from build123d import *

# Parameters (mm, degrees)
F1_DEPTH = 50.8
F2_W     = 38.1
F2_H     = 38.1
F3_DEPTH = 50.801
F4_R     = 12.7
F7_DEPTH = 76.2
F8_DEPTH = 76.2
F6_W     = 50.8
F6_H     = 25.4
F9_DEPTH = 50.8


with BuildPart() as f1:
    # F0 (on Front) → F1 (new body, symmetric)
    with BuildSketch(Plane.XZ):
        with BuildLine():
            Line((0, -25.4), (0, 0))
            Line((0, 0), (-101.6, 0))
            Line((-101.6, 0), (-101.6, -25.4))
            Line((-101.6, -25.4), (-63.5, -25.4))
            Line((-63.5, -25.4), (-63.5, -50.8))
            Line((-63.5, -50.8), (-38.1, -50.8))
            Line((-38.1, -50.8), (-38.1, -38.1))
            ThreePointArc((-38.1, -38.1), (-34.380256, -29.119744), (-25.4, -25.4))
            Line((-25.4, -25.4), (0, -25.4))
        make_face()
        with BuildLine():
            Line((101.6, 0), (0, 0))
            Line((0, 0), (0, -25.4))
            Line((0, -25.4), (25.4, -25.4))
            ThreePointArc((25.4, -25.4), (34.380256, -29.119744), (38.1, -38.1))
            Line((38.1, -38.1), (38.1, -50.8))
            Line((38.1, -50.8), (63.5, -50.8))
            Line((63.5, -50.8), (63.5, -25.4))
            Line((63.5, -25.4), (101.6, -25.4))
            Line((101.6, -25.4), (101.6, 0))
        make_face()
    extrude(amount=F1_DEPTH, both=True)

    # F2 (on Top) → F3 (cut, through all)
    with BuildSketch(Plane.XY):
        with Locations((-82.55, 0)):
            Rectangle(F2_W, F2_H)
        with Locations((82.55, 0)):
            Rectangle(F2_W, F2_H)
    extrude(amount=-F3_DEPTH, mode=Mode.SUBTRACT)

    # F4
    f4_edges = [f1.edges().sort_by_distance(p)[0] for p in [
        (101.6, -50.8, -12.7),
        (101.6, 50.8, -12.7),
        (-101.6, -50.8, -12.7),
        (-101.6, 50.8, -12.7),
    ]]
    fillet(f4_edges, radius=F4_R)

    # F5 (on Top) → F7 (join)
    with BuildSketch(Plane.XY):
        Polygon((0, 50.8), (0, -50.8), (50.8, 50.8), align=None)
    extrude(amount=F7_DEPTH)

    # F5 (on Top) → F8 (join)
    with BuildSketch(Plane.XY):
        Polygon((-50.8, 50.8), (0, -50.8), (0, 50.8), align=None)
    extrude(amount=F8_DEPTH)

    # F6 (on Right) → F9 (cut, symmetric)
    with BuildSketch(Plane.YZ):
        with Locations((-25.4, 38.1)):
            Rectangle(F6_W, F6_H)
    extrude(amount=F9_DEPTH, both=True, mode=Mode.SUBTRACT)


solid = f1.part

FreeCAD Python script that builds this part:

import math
import FreeCAD as App
import Part
import Sketcher
Q = App.Units.Quantity


def edges_at(feature, points):
    """Names of the edges that pass closest to the given points."""
    edges = feature.Shape.Edges
    near = lambda p: min(range(len(edges)), key=lambda i: edges[i].distToShape(Part.Vertex(*p))[0])
    return sorted({f"Edge{near(p) + 1}" for p in points})


def add_polygon(sketch, points):
    """Adds a closed chain of lines whose ends are joined by coincident constraints."""
    first, n = sketch.GeometryCount, len(points)
    for a, b in zip(points, points[1:] + points[:1]):
        sketch.addGeometry(Part.LineSegment(App.Vector(*a, 0), App.Vector(*b, 0)), False)
    for i in range(n):
        sketch.addConstraint(Sketcher.Constraint("Coincident", first + i, 2, first + (i + 1) % n, 1))

doc = App.newDocument("Part")
body = doc.addObject("PartDesign::Body", "Body")

# Sketch on XZ plane
sketch1 = doc.addObject("Sketcher::SketchObject", "Sketch")
body.addObject(sketch1)
sketch1.AttachmentSupport = (doc.XZ_Plane, [""])
sketch1.MapMode = "FlatFace"
sketch1.addGeometry([
    Part.LineSegment(App.Vector(-102, 0, 0), App.Vector(-102, -25, 0)),  # 0
    Part.LineSegment(App.Vector(-102, -25, 0), App.Vector(-64, -25, 0)),  # 1
    Part.LineSegment(App.Vector(-64, -25, 0), App.Vector(-64, -51, 0)),  # 2
    Part.LineSegment(App.Vector(-64, -51, 0), App.Vector(-38, -51, 0)),  # 3
    Part.LineSegment(App.Vector(-38, -51, 0), App.Vector(-38, -38, 0)),  # 4
    Part.ArcOfCircle(Part.Circle(App.Vector(-25, -38, 0), App.Vector(0, 0, 1), 13), math.radians(90), math.radians(180)),  # 5
    Part.LineSegment(App.Vector(-25, -25, 0), App.Vector(25, -25, 0)),  # 6
    Part.ArcOfCircle(Part.Circle(App.Vector(25, -38, 0), App.Vector(0, 0, 1), 13), math.radians(0), math.radians(90)),  # 7
    Part.LineSegment(App.Vector(38, -38, 0), App.Vector(38, -51, 0)),  # 8
    Part.LineSegment(App.Vector(38, -51, 0), App.Vector(64, -51, 0)),  # 9
    Part.LineSegment(App.Vector(64, -51, 0), App.Vector(64, -25, 0)),  # 10
    Part.LineSegment(App.Vector(64, -25, 0), App.Vector(102, -25, 0)),  # 11
    Part.LineSegment(App.Vector(102, -25, 0), App.Vector(102, 0, 0)),  # 12
    Part.LineSegment(App.Vector(102, 0, 0), App.Vector(-102, 0, 0)),  # 13
], False)
sketch1.addConstraint([
    Sketcher.Constraint("Coincident", 0, 2, 1, 1),
    Sketcher.Constraint("Coincident", 1, 2, 2, 1),
    Sketcher.Constraint("Coincident", 2, 2, 3, 1),
    Sketcher.Constraint("Coincident", 3, 2, 4, 1),
    Sketcher.Constraint("Tangent", 4, 2, 5, 2),
    Sketcher.Constraint("Tangent", 5, 1, 6, 1),
    Sketcher.Constraint("Tangent", 6, 2, 7, 2),
    Sketcher.Constraint("Tangent", 7, 1, 8, 1),
    Sketcher.Constraint("Coincident", 8, 2, 9, 1),
    Sketcher.Constraint("Coincident", 9, 2, 10, 1),
    Sketcher.Constraint("Coincident", 10, 2, 11, 1),
    Sketcher.Constraint("Coincident", 11, 2, 12, 1),
    Sketcher.Constraint("Coincident", 12, 2, 13, 1),
    Sketcher.Constraint("Coincident", 13, 2, 0, 1),
    Sketcher.Constraint("Vertical", 0),
    Sketcher.Constraint("Horizontal", 1),
    Sketcher.Constraint("Vertical", 2),
    Sketcher.Constraint("Horizontal", 3),
    Sketcher.Constraint("Vertical", 4),
    Sketcher.Constraint("Horizontal", 6),
    Sketcher.Constraint("Vertical", 8),
    Sketcher.Constraint("Horizontal", 9),
    Sketcher.Constraint("Vertical", 10),
    Sketcher.Constraint("Horizontal", 11),
    Sketcher.Constraint("Vertical", 12),
    Sketcher.Constraint("Horizontal", 13),
    Sketcher.Constraint("Equal", 5, 7),
    Sketcher.Constraint("Symmetric", 12, 2, 13, 2, -1, 1),
    Sketcher.Constraint("Symmetric", 3, 2, 8, 2, -2),
    Sketcher.Constraint("Symmetric", 1, 2, 10, 2, -2),
    Sketcher.Constraint("Horizontal", 1, 2, 5, 1),
    Sketcher.Constraint("Equal", 9, 0),
    Sketcher.Constraint("Equal", 0, 2),
    Sketcher.Constraint("Radius", 5, Q("0.5 in")),
    Sketcher.Constraint("DistanceX", 3, 1, 3, 2, Q("1 in")),
    Sketcher.Constraint("DistanceX", 6, 1, 6, 2, Q("2 in")),
    Sketcher.Constraint("DistanceX", 13, 2, 13, 1, Q("8 in")),
])
pad1 = doc.addObject("PartDesign::Pad", "Pad")
body.addObject(pad1)
pad1.Profile = sketch1
pad1.Length = Q("4 in")
pad1.Midplane = True

# Sketch on XY plane
sketch2 = doc.addObject("Sketcher::SketchObject", "Sketch001")
body.addObject(sketch2)
sketch2.AttachmentSupport = (doc.XY_Plane, [""])
sketch2.MapMode = "FlatFace"
add_polygon(sketch2, [(-102, 19), (-102, -19), (-64, -19), (-64, 19)])  # lines 0-3
add_polygon(sketch2, [(64, 19), (64, -19), (102, -19), (102, 19)])  # lines 4-7
sketch2.addConstraint([
    Sketcher.Constraint("Vertical", 0),
    Sketcher.Constraint("Horizontal", 1),
    Sketcher.Constraint("Vertical", 2),
    Sketcher.Constraint("Horizontal", 3),
    Sketcher.Constraint("Vertical", 4),
    Sketcher.Constraint("Horizontal", 5),
    Sketcher.Constraint("Vertical", 6),
    Sketcher.Constraint("Horizontal", 7),
    Sketcher.Constraint("Symmetric", 2, 2, 4, 2, -1, 1),
    Sketcher.Constraint("Symmetric", 0, 2, 6, 2, -1, 1),
    Sketcher.Constraint("Horizontal", 1, 2, 4, 2),
    Sketcher.Constraint("Equal", 7, 0),
    Sketcher.Constraint("DistanceX", 1, 1, 1, 2, Q("1.5 in")),
    Sketcher.Constraint("DistanceX", 0, 2, -1, 1, Q("4 in")),
])
pocket1 = doc.addObject("PartDesign::Pocket", "Pocket")
body.addObject(pocket1)
pocket1.Profile = sketch2
pocket1.Type = "ThroughAll"
doc.recompute()

fillet = doc.addObject("PartDesign::Fillet", "Fillet")
body.addObject(fillet)
fillet.Base = (pocket1, edges_at(pocket1, [
    (101.6, -50.8, -12.7),
    (101.6, 50.8, -12.7),
    (-101.6, -50.8, -12.7),
    (-101.6, 50.8, -12.7),
]))
fillet.Radius = Q("0.5 in")

# Sketch on XY plane
sketch3 = doc.addObject("Sketcher::SketchObject", "Sketch002")
body.addObject(sketch3)
sketch3.AttachmentSupport = (doc.XY_Plane, [""])
sketch3.MapMode = "FlatFace"
add_polygon(sketch3, [(0, 51), (0, -51), (51, 51)])  # lines 0-2
sketch3.addConstraint([
    Sketcher.Constraint("Vertical", 0),
    Sketcher.Constraint("Horizontal", 2),
    Sketcher.Constraint("Symmetric", 0, 2, 2, 2, -1, 1),
    Sketcher.Constraint("DistanceX", 2, 2, 2, 1, Q("2 in")),
    Sketcher.Constraint("DistanceY", 0, 2, 0, 1, Q("4 in")),
])
pad2 = doc.addObject("PartDesign::Pad", "Pad001")
body.addObject(pad2)
pad2.Profile = sketch3
pad2.Length = Q("3 in")

# Sketch on XY plane
sketch4 = doc.addObject("Sketcher::SketchObject", "Sketch003")
body.addObject(sketch4)
sketch4.AttachmentSupport = (doc.XY_Plane, [""])
sketch4.MapMode = "FlatFace"
add_polygon(sketch4, [(-51, 51), (0, -51), (0, 51)])  # lines 0-2
sketch4.addConstraint([
    Sketcher.Constraint("Vertical", 1),
    Sketcher.Constraint("Horizontal", 2),
    Sketcher.Constraint("Symmetric", 0, 2, 1, 2, -1, 1),
    Sketcher.Constraint("DistanceX", 2, 2, 2, 1, Q("2 in")),
    Sketcher.Constraint("DistanceY", 1, 1, 1, 2, Q("4 in")),
])
pad3 = doc.addObject("PartDesign::Pad", "Pad002")
body.addObject(pad3)
pad3.Profile = sketch4
pad3.Length = Q("3 in")

# Sketch on YZ plane
sketch5 = doc.addObject("Sketcher::SketchObject", "Sketch004")
body.addObject(sketch5)
sketch5.AttachmentSupport = (doc.YZ_Plane, [""])
sketch5.MapMode = "FlatFace"
add_polygon(sketch5, [(-51, 51), (-51, 25), (0, 25), (0, 51)])  # lines 0-3
sketch5.addConstraint([
    Sketcher.Constraint("Vertical", 0),
    Sketcher.Constraint("Horizontal", 1),
    Sketcher.Constraint("Vertical", 2),
    Sketcher.Constraint("Horizontal", 3),
    Sketcher.Constraint("PointOnObject", 1, 2, -2),
    Sketcher.Constraint("DistanceX", 1, 1, 1, 2, Q("2 in")),
    Sketcher.Constraint("DistanceY", 0, 2, 0, 1, Q("1 in")),
    Sketcher.Constraint("DistanceY", -1, 1, 0, 2, Q("1 in")),
])
pocket2 = doc.addObject("PartDesign::Pocket", "Pocket001")
body.addObject(pocket2)
pocket2.Profile = sketch5
pocket2.Length = Q("4 in")
pocket2.Midplane = True

doc.recompute()
